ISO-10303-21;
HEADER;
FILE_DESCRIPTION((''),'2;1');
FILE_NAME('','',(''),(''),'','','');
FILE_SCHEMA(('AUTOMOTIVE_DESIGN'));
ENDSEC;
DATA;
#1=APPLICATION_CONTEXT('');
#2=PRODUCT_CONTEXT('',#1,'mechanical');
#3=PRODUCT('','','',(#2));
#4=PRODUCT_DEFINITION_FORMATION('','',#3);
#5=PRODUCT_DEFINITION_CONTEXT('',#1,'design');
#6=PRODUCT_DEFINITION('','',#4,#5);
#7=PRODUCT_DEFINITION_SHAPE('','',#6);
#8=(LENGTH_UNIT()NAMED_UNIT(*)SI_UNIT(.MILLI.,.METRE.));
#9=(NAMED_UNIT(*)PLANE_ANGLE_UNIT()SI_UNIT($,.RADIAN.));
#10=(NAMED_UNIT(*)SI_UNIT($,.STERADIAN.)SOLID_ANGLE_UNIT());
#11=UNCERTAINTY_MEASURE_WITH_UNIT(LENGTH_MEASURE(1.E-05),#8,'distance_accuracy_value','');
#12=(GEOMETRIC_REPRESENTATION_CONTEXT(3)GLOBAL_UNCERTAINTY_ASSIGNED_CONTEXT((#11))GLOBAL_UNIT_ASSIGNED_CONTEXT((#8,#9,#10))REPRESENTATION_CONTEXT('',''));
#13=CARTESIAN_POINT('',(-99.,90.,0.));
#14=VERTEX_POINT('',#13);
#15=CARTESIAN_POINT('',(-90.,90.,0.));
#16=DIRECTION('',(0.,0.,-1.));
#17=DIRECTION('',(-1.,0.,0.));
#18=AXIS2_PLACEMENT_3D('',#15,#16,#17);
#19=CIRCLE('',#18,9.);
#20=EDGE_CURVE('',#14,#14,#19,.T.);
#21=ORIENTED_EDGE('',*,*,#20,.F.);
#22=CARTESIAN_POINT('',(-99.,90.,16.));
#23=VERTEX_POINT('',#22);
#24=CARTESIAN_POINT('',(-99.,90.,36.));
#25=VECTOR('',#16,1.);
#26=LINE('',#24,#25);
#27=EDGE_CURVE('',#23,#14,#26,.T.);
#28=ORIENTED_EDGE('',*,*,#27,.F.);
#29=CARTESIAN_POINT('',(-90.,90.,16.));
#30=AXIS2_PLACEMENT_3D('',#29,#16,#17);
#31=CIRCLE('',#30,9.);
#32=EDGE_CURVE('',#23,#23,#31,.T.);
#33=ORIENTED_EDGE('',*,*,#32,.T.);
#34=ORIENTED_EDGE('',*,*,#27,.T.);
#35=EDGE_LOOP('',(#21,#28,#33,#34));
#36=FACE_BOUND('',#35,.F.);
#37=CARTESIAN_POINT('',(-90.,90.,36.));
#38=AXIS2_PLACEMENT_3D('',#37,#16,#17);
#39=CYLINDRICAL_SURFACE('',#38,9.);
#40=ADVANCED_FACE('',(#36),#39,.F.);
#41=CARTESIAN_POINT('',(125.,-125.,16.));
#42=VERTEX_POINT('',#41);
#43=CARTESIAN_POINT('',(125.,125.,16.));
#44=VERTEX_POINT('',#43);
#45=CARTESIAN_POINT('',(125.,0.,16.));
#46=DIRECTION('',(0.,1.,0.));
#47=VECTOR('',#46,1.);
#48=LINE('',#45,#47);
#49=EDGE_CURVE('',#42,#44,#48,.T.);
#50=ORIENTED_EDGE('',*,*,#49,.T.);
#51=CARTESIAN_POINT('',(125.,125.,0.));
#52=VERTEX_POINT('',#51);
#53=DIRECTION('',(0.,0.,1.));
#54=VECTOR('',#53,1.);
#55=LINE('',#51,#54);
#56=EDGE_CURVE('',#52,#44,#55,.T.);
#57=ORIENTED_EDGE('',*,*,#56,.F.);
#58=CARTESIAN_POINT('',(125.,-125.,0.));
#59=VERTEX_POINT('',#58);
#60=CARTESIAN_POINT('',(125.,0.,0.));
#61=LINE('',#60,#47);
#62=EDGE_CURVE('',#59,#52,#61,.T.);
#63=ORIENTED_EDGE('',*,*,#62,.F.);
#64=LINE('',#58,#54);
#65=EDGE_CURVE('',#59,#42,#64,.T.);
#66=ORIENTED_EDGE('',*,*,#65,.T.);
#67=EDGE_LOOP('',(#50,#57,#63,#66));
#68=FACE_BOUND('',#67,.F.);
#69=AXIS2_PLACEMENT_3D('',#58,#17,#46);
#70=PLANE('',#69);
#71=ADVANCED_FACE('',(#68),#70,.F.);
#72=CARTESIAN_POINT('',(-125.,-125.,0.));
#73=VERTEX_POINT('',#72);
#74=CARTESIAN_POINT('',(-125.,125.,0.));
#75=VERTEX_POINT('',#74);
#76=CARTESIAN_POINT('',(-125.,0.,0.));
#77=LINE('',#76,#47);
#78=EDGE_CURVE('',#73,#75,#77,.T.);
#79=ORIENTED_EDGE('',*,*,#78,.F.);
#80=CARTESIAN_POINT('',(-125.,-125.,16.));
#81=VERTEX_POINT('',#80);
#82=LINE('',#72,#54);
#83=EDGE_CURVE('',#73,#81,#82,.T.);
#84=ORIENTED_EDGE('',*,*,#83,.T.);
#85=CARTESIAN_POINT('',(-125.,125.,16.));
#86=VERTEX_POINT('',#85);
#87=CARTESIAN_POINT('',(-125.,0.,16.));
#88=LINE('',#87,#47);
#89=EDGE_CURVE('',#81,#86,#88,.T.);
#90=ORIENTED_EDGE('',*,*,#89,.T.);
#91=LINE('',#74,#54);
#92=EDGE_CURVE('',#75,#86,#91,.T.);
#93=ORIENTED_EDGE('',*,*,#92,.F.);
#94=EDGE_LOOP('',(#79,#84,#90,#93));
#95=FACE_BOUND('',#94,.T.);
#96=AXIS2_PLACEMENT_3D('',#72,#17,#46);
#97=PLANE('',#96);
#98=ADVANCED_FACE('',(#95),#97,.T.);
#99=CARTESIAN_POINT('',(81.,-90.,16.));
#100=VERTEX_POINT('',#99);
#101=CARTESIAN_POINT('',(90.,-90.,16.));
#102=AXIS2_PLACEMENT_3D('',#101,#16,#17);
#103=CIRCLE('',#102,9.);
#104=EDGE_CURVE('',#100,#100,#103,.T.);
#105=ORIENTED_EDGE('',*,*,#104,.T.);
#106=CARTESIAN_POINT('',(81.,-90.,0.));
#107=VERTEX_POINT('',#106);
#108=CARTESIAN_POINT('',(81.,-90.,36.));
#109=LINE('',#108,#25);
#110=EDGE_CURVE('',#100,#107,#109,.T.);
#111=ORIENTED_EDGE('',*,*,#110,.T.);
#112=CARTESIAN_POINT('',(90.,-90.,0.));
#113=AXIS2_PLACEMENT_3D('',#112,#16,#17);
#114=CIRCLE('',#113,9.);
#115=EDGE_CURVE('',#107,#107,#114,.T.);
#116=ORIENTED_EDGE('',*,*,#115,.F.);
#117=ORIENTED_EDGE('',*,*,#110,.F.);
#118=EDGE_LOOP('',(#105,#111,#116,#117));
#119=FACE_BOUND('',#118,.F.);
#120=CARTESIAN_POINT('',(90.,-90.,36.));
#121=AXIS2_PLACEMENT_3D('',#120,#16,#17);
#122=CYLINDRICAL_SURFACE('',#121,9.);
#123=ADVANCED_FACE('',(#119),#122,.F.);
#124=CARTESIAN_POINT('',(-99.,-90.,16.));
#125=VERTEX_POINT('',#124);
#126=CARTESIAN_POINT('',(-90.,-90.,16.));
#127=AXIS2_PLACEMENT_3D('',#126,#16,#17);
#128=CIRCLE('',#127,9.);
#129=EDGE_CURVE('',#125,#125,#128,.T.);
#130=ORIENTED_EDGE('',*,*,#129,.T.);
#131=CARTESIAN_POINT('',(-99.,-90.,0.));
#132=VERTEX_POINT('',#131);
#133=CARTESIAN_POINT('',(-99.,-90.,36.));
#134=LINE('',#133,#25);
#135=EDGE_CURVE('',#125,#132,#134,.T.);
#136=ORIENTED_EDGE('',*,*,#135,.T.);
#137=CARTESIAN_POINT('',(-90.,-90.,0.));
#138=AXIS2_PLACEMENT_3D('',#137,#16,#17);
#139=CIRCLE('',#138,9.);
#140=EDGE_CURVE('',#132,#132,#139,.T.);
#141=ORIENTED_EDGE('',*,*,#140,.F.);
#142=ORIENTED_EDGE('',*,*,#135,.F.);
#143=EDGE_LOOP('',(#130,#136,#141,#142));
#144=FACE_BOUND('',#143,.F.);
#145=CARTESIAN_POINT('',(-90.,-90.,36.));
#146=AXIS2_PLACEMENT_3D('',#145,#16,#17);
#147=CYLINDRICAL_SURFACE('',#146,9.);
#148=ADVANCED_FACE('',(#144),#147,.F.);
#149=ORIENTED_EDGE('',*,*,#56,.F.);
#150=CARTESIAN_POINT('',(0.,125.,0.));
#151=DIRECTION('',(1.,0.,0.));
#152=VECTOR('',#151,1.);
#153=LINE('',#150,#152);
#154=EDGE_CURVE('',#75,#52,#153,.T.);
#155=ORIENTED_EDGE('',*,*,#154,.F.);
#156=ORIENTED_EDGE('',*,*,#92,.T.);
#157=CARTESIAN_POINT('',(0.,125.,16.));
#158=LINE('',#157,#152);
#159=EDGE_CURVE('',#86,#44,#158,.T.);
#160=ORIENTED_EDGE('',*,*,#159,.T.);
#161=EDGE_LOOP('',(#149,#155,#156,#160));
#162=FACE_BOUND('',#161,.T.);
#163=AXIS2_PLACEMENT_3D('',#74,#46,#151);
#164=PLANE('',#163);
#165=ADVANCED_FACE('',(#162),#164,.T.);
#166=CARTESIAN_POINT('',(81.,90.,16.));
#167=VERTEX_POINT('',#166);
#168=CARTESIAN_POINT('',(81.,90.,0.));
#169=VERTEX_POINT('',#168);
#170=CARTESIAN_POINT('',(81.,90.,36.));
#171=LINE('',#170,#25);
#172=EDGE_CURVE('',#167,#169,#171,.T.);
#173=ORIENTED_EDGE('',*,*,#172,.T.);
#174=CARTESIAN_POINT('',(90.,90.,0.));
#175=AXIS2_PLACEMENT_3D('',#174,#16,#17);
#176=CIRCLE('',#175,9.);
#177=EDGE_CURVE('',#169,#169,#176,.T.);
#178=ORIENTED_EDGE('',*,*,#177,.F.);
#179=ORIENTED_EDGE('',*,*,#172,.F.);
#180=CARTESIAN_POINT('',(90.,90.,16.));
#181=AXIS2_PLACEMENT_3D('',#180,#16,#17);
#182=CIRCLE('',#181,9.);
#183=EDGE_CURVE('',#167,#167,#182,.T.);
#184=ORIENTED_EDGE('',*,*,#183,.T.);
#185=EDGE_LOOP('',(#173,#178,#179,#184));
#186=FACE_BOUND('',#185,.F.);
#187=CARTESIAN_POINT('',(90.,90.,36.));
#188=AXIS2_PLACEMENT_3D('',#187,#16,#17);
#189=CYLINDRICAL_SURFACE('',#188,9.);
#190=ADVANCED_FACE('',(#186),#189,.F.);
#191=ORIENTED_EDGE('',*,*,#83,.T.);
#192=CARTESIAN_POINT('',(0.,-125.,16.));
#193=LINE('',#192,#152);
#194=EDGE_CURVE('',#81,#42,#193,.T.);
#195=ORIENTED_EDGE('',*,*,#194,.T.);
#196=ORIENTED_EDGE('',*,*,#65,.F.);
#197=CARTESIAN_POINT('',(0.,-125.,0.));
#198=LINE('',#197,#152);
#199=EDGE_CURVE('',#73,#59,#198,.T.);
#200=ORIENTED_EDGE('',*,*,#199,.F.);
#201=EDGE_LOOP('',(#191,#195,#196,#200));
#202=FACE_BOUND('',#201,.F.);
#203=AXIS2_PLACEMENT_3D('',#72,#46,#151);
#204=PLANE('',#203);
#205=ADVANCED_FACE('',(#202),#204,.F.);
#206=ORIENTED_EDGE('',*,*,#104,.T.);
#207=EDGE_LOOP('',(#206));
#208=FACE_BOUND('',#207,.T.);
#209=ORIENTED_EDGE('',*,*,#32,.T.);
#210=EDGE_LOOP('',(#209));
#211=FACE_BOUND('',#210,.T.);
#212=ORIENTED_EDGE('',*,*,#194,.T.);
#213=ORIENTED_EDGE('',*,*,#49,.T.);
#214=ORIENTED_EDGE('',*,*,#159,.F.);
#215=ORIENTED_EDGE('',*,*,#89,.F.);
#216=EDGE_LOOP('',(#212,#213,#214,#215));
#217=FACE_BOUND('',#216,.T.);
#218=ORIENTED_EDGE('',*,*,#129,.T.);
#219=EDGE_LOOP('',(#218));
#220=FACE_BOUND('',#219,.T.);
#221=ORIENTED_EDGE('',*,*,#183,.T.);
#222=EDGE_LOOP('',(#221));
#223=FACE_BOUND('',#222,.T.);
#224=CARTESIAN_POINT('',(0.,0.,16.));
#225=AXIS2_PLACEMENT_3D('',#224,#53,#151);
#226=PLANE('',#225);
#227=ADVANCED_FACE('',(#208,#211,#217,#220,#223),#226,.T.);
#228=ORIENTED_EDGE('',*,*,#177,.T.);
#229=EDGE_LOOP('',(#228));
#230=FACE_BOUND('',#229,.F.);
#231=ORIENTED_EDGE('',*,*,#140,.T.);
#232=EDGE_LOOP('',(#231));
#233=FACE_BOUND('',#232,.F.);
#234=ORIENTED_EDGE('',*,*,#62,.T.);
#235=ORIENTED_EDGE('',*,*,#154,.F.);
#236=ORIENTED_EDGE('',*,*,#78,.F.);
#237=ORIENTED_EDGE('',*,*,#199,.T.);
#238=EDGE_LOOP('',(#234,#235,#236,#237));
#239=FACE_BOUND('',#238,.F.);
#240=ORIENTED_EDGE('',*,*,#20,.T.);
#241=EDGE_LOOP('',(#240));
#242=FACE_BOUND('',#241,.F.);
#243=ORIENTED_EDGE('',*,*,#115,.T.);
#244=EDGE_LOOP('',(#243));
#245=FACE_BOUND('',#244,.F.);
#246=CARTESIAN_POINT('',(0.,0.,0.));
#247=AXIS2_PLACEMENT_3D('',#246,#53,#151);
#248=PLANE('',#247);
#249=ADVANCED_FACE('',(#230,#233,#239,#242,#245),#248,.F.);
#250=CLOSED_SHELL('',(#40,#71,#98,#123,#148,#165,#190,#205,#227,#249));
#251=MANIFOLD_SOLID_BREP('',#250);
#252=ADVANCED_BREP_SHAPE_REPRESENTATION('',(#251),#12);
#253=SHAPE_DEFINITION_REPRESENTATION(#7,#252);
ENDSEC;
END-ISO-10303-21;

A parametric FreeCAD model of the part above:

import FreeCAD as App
import Part
import Sketcher

doc = App.newDocument("Part")
body = doc.addObject("PartDesign::Body", "Body")

# Sketch on XY plane
sketch1 = body.newObject("Sketcher::SketchObject", "Sketch")
sketch1.AttachmentSupport = (doc.getObject("XY_Plane"), [""])
sketch1.MapMode = "FlatFace"
sketch1.addGeometry([
    Part.LineSegment(App.Vector(-125, 125, 0), App.Vector(-125, -125, 0)),
    Part.LineSegment(App.Vector(-125, -125, 0), App.Vector(125, -125, 0)),
    Part.LineSegment(App.Vector(125, -125, 0), App.Vector(125, 125, 0)),
    Part.LineSegment(App.Vector(125, 125, 0), App.Vector(-125, 125, 0)),
], False)
sketch1.addConstraint([
    Sketcher.Constraint("Coincident", 0, 2, 1, 1),
    Sketcher.Constraint("Coincident", 1, 2, 2, 1),
    Sketcher.Constraint("Coincident", 2, 2, 3, 1),
    Sketcher.Constraint("Coincident", 3, 2, 0, 1),
    Sketcher.Constraint("Vertical", 0),
    Sketcher.Constraint("Horizontal", 1),
    Sketcher.Constraint("Vertical", 2),
    Sketcher.Constraint("Horizontal", 3),
    Sketcher.Constraint("Symmetric", 0, 2, 2, 2, -1, 1),
    Sketcher.Constraint("Equal", 3, 0),
    Sketcher.Constraint("DistanceX", 1, 1, 1, 2, 250.0),
])
pad1 = body.newObject("PartDesign::Pad", "Pad")
pad1.Profile = sketch1
pad1.Length = 16

# Sketch on XY plane
sketch2 = body.newObject("Sketcher::SketchObject", "Sketch001")
sketch2.AttachmentSupport = (doc.getObject("XY_Plane"), [""])
sketch2.MapMode = "FlatFace"
sketch2.AttachmentOffset = App.Placement(App.Vector(0, 0, 16), App.Rotation())
sketch2.addGeometry([
    Part.Circle(App.Vector(-90, 90, 0), App.Vector(0, 0, 1), 9),
    Part.Circle(App.Vector(90, 90, 0), App.Vector(0, 0, 1), 9),
    Part.Circle(App.Vector(90, -90, 0), App.Vector(0, 0, 1), 9),
    Part.Circle(App.Vector(-90, -90, 0), App.Vector(0, 0, 1), 9),
], False)
sketch2.addConstraint([
    Sketcher.Constraint("Equal", 0, 1),
    Sketcher.Constraint("Equal", 1, 2),
    Sketcher.Constraint("Equal", 2, 3),
    Sketcher.Constraint("Symmetric", 0, 3, 2, 3, -1, 1),
    Sketcher.Constraint("Symmetric", 1, 3, 3, 3, -1, 1),
    Sketcher.Constraint("Symmetric", 0, 3, 1, 3, -2),
    Sketcher.Constraint("Diameter", 0, 18.0),
    Sketcher.Constraint("DistanceX", 0, 3, -1, 1, 90.0),
    Sketcher.Constraint("DistanceY", -1, 1, 0, 3, 90.0),
])
doc.recompute()
hole = body.newObject("PartDesign::Hole", "Hole")
hole.Profile = sketch2
hole.ThreadType = "None"
hole.Diameter = 18
hole.DepthType = "Dimension"
hole.Depth = 20
hole.DrillPoint = "Flat"

doc.recompute()
